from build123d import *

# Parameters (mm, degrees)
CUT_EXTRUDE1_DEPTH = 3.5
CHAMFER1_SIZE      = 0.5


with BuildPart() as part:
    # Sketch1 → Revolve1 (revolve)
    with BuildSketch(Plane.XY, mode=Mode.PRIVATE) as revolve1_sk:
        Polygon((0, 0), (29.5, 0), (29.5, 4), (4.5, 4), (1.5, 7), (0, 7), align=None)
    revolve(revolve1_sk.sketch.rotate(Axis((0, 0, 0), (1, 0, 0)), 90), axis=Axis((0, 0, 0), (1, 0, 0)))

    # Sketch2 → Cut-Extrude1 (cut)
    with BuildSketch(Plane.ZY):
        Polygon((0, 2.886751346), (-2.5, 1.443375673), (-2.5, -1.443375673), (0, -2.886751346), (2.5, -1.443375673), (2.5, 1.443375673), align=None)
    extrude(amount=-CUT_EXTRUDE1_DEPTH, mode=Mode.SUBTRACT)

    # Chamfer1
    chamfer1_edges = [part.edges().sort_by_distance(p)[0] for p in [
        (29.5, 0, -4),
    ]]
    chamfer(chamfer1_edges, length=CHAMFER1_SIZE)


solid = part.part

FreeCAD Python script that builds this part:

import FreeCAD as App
import Part
import Sketcher
Q = App.Units.Quantity


def edges_at(feature, points):
    """Names of the edges that pass closest to the given points."""
    edges = feature.Shape.Edges
    near = lambda p: min(range(len(edges)), key=lambda i: edges[i].distToShape(Part.Vertex(*p))[0])
    return sorted({f"Edge{near(p) + 1}" for p in points})


def add_polygon(sketch, points):
    """Adds a closed chain of lines whose ends are joined by coincident constraints."""
    first, n = sketch.GeometryCount, len(points)
    for a, b in zip(points, points[1:] + points[:1]):
        sketch.addGeometry(Part.LineSegment(App.Vector(*a, 0), App.Vector(*b, 0)), False)
    for i in range(n):
        sketch.addConstraint(Sketcher.Constraint("Coincident", first + i, 2, first + (i + 1) % n, 1))

doc = App.newDocument("Part")
params = doc.addObject("Spreadsheet::Sheet", "Params")
for row, (alias, value) in enumerate([
    ("sketch1_width", "25 mm"),
    ("sketch1_height", "4 mm"),
    ("sketch1_height2", "7 mm"),
    ("sketch1_width2", "29.5 mm"),
    ("revolution_angle", "360 deg"),
    ("pocket1_length", "3.5 mm"),
    ("chamfer_size", "0.5 mm"),
], start=1):
    params.set(f"A{row}", alias)
    params.set(f"B{row}", "=" + value)
    params.setAlias(f"B{row}", alias)

body = doc.addObject("PartDesign::Body", "Body")

sketch1 = body.newObject("Sketcher::SketchObject", "Sketch")
sketch1.AttachmentSupport = (doc.getObject("XY_Plane"), [""])
sketch1.MapMode = "FlatFace"
add_polygon(sketch1, [(0, 0), (29.5, 0), (29.5, 4), (4.5, 4), (1.5, 7), (0, 7)])
sketch1.addConstraint(Sketcher.Constraint("Horizontal", 0))
sketch1.addConstraint(Sketcher.Constraint("Vertical", 1))
sketch1.addConstraint(Sketcher.Constraint("Horizontal", 2))
sketch1.addConstraint(Sketcher.Constraint("Horizontal", 4))
sketch1.addConstraint(Sketcher.Constraint("Vertical", 5))
sketch1.addConstraint(Sketcher.Constraint("Coincident", 5, 2, -1, 1))
sketch1.addConstraint(Sketcher.Constraint("DistanceX", 2, 2, 2, 1, 25.0))
sketch1.addConstraint(Sketcher.Constraint("DistanceY", 1, 1, 1, 2, 4.0))
sketch1.addConstraint(Sketcher.Constraint("DistanceY", 5, 2, 5, 1, 7.0))
sketch1.addConstraint(Sketcher.Constraint("Angle", 3, Q("135 deg")))
sketch1.addConstraint(Sketcher.Constraint("DistanceX", 0, 1, 0, 2, 29.5))
sketch1.setExpression("Constraints[12]", "Params.sketch1_width")
sketch1.setExpression("Constraints[13]", "Params.sketch1_height")
sketch1.setExpression("Constraints[14]", "Params.sketch1_height2")
sketch1.setExpression("Constraints[16]", "Params.sketch1_width2")
revolution = body.newObject("PartDesign::Revolution", "Revolution")
revolution.Profile = sketch1
revolution.ReferenceAxis = (sketch1, ["H_Axis"])
revolution.setExpression("Angle", "Params.revolution_angle")

sketch2 = body.newObject("Sketcher::SketchObject", "Sketch001")
sketch2.AttachmentSupport = (doc.getObject("YZ_Plane"), [""])
sketch2.MapMode = "FlatFace"
add_polygon(sketch2, [(2.886751, 0), (1.443376, -2.5), (-1.443376, -2.5), (-2.886751, 0), (-1.443376, 2.5), (1.443376, 2.5)])
sketch2.addConstraint(Sketcher.Constraint("Horizontal", 1))
sketch2.addConstraint(Sketcher.Constraint("Horizontal", 4))
sketch2.addConstraint(Sketcher.Constraint("Symmetric", 0, 2, 3, 2, -1, 1))
sketch2.addConstraint(Sketcher.Constraint("Symmetric", 2, 2, 5, 2, -1, 1))
sketch2.addConstraint(Sketcher.Constraint("PointOnObject", 2, 2, -1))
sketch2.addConstraint(Sketcher.Constraint("Parallel", 2, 5))
sketch2.addConstraint(Sketcher.Constraint("Vertical", 1, 2, 3, 2))
sketch2.addConstraint(Sketcher.Constraint("Angle", 0, Q("-120 deg")))
sketch2.addConstraint(Sketcher.Constraint("DistanceY", 1, 2, 3, 2, 5.0))
sketch2.addConstraint(Sketcher.Constraint("DistanceX", 1, 2, 1, 1, 2.886751))
pocket1 = body.newObject("PartDesign::Pocket", "Pocket")
pocket1.Profile = sketch2
pocket1.setExpression("Length", "Params.pocket1_length")
pocket1.Reversed = True
doc.recompute()

chamfer = body.newObject("PartDesign::Chamfer", "Chamfer")
chamfer.Base = (pocket1, edges_at(pocket1, [(29.5, 0, -4)]))
chamfer.setExpression("Size", "Params.chamfer_size")

doc.recompute()
